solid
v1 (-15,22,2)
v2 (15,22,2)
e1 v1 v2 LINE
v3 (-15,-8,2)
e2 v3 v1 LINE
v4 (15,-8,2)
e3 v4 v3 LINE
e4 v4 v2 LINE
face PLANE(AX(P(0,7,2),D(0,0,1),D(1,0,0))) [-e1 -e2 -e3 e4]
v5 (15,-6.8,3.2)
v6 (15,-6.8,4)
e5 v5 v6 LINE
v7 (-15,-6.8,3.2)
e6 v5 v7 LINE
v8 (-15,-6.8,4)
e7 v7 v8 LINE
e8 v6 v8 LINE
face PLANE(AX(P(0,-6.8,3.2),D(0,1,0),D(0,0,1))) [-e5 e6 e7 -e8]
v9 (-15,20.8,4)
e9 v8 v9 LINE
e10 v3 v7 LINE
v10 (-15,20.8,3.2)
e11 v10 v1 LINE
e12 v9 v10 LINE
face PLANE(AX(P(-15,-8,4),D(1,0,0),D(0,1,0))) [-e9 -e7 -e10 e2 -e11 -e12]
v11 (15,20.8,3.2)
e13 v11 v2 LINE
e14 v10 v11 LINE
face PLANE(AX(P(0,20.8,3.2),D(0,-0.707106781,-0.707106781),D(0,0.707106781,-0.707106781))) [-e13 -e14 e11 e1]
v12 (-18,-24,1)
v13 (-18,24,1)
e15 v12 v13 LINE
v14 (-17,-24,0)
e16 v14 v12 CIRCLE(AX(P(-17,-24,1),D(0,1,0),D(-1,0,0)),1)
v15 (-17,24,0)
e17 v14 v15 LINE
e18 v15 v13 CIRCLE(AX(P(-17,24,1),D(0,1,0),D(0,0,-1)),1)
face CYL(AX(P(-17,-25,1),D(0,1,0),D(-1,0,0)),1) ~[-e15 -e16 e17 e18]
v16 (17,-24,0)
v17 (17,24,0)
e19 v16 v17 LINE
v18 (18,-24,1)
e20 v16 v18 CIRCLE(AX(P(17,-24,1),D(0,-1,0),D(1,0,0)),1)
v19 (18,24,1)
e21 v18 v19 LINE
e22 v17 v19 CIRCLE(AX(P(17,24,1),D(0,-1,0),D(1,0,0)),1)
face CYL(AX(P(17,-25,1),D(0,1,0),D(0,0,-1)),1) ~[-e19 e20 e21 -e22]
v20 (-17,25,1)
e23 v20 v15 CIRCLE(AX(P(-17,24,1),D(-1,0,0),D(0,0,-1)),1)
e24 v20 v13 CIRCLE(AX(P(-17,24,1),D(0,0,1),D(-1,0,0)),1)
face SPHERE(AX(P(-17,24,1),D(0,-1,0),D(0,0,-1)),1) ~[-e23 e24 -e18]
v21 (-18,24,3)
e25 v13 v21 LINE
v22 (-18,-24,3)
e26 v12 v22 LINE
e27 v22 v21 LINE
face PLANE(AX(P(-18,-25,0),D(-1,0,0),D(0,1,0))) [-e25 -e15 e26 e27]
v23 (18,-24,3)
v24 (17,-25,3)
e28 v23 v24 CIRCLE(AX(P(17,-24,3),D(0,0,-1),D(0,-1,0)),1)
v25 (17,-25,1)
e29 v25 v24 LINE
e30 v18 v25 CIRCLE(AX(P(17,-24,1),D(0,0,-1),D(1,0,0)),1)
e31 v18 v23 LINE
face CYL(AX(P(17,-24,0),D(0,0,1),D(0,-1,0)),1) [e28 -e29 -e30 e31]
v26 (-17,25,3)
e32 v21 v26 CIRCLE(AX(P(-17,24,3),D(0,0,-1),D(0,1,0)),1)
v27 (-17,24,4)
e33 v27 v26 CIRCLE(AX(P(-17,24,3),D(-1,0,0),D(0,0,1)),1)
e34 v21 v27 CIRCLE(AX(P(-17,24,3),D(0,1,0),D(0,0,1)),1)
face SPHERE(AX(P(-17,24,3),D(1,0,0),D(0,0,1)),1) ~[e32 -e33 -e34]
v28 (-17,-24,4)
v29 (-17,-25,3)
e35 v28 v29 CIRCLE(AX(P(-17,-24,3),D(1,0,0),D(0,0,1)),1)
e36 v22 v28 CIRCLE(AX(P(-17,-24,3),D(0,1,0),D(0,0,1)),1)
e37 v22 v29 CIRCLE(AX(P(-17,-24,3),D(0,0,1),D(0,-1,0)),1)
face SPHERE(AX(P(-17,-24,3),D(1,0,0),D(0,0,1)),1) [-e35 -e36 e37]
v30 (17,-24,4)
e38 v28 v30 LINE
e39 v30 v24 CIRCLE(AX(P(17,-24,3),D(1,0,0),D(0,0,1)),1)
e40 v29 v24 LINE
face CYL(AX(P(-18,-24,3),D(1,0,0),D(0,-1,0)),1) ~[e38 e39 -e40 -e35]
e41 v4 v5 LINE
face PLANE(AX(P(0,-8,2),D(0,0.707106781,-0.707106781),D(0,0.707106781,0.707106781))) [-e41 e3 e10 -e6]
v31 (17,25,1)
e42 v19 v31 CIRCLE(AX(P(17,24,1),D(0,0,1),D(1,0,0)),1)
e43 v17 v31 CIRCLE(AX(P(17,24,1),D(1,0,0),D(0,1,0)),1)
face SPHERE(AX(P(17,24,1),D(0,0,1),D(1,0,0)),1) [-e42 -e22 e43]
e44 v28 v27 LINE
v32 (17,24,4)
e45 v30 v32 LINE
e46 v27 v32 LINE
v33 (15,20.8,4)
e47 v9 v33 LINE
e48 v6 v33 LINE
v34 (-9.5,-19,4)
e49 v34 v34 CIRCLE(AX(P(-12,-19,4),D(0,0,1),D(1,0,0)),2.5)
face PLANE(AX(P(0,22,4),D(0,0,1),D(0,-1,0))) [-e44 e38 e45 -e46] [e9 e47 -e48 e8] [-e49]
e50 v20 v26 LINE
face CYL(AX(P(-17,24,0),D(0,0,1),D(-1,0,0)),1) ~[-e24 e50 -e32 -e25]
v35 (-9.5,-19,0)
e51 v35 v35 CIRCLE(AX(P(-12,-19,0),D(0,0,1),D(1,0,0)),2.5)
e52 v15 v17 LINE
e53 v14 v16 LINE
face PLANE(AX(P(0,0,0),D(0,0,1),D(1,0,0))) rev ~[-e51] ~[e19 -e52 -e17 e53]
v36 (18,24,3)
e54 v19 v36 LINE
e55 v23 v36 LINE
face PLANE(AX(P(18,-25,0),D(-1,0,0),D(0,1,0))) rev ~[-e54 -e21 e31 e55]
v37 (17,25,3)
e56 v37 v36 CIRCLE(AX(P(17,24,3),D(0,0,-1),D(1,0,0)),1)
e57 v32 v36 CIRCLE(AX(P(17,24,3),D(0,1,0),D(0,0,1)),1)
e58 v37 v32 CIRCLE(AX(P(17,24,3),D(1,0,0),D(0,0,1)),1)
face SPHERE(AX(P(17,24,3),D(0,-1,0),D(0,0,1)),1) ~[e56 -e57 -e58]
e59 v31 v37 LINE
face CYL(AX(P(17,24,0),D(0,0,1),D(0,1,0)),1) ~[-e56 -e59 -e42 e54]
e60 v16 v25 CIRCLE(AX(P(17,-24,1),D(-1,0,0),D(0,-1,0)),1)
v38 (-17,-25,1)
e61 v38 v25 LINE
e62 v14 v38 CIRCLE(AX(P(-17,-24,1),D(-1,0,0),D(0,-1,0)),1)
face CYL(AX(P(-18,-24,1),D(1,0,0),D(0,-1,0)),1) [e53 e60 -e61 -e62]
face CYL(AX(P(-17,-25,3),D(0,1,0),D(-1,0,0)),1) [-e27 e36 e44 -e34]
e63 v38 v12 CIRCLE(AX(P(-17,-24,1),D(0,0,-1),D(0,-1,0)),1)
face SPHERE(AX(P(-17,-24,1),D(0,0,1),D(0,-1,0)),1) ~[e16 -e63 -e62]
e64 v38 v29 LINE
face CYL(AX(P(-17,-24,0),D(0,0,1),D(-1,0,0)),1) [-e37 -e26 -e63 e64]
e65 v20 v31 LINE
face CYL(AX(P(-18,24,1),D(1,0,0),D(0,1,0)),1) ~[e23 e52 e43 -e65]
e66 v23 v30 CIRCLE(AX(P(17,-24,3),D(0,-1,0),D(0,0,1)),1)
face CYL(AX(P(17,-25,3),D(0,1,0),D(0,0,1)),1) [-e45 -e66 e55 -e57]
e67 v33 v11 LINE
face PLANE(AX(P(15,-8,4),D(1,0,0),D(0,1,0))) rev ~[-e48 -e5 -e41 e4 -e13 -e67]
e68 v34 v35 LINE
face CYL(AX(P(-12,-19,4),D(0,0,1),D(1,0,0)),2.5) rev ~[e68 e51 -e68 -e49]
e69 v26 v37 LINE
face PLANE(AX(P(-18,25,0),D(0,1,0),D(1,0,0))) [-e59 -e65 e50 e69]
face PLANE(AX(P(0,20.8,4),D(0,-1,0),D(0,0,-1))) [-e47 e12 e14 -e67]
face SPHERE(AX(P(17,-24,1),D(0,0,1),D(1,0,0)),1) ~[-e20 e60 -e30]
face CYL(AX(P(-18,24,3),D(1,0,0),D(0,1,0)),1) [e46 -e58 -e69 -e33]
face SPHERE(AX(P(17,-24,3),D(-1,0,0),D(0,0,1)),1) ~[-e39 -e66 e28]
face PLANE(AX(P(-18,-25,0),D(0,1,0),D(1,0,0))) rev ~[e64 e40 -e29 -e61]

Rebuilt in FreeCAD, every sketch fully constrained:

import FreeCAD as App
import Part
import Sketcher

V = App.Vector
Q = App.Units.Quantity


def edges_at(feature, points):
    """Names of the edges that pass closest to the given points."""
    edges = feature.Shape.Edges
    near = lambda p: min(range(len(edges)), key=lambda i: edges[i].distToShape(Part.Vertex(*p))[0])
    return sorted({f"Edge{near(p) + 1}" for p in points})

doc = App.newDocument("Part")
body = doc.addObject("PartDesign::Body", "Body")

# Sketch on XY plane
sketch1 = body.newObject("Sketcher::SketchObject", "Sketch")
sketch1.AttachmentSupport = (doc.getObject("XY_Plane"), [""])
sketch1.MapMode = "FlatFace"
sketch1.addGeometry([
    Part.LineSegment(V(-18, 25, 0), V(-18, -25, 0)),
    Part.LineSegment(V(-18, -25, 0), V(18, -25, 0)),
    Part.LineSegment(V(18, -25, 0), V(18, 25, 0)),
    Part.LineSegment(V(18, 25, 0), V(-18, 25, 0)),
], False)
sketch1.addConstraint([
    Sketcher.Constraint("Coincident", 0, 2, 1, 1),
    Sketcher.Constraint("Coincident", 1, 2, 2, 1),
    Sketcher.Constraint("Coincident", 2, 2, 3, 1),
    Sketcher.Constraint("Coincident", 3, 2, 0, 1),
    Sketcher.Constraint("Vertical", 0),
    Sketcher.Constraint("Horizontal", 1),
    Sketcher.Constraint("Vertical", 2),
    Sketcher.Constraint("Horizontal", 3),
    Sketcher.Constraint("Symmetric", 0, 2, 2, 2, -1, 1),
    Sketcher.Constraint("DistanceX", 1, 1, 1, 2, Q("36 mm")),
    Sketcher.Constraint("DistanceY", 0, 2, 0, 1, Q("50 mm")),
])
pad1 = body.newObject("PartDesign::Pad", "Pad")
pad1.Profile = sketch1
pad1.Length = 4

# Sketch on XY plane
sketch2 = body.newObject("Sketcher::SketchObject", "Sketch001")
sketch2.AttachmentSupport = (doc.getObject("XY_Plane"), [""])
sketch2.MapMode = "FlatFace"
sketch2.AttachmentOffset = App.Placement(V(0, 0, 4), App.Rotation())
sketch2.addGeometry([
    Part.LineSegment(V(-15, 22, 0), V(-15, -8, 0)),
    Part.LineSegment(V(-15, -8, 0), V(15, -8, 0)),
    Part.LineSegment(V(15, -8, 0), V(15, 22, 0)),
    Part.LineSegment(V(15, 22, 0), V(-15, 22, 0)),
], False)
sketch2.addConstraint([
    Sketcher.Constraint("Coincident", 0, 2, 1, 1),
    Sketcher.Constraint("Coincident", 1, 2, 2, 1),
    Sketcher.Constraint("Coincident", 2, 2, 3, 1),
    Sketcher.Constraint("Coincident", 3, 2, 0, 1),
    Sketcher.Constraint("Vertical", 0),
    Sketcher.Constraint("Horizontal", 1),
    Sketcher.Constraint("Vertical", 2),
    Sketcher.Constraint("Horizontal", 3),
    Sketcher.Constraint("Equal", 3, 0),
    Sketcher.Constraint("DistanceX", 1, 1, 1, 2, Q("30 mm")),
    Sketcher.Constraint("DistanceX", 0, 2, -1, 1, Q("15 mm")),
    Sketcher.Constraint("DistanceY", 0, 2, -1, 1, Q("8 mm")),
])
pocket1 = body.newObject("PartDesign::Pocket", "Pocket")
pocket1.Profile = sketch2
pocket1.Length = 2
doc.recompute()

fillet = body.newObject("PartDesign::Fillet", "Fillet")
fillet.Base = (pocket1, edges_at(pocket1, [
    (0, -25, 4),
    (18, 0, 4),
    (0, 25, 4),
    (-18, 0, 4),
    (18, -25, 2),
    (-18, -25, 2),
    (18, 25, 2),
    (18, 0, 0),
    (0, -25, 0),
    (-18, 0, 0),
    (0, 25, 0),
    (-18, 25, 2),
]))
fillet.Radius = 1

# Sketch on YZ plane
sketch3 = body.newObject("Sketcher::SketchObject", "Sketch002")
sketch3.AttachmentSupport = (doc.getObject("YZ_Plane"), [""])
sketch3.MapMode = "FlatFace"
sketch3.addGeometry([
    Part.LineSegment(V(-6.8, 4, 0), V(-8, 4, 0)),
    Part.LineSegment(V(-8, 4, 0), V(-8, 2, 0)),
    Part.LineSegment(V(-8, 2, 0), V(-6.8, 3.2, 0)),
    Part.LineSegment(V(-6.8, 3.2, 0), V(-6.8, 4, 0)),
], False)
sketch3.addConstraint([
    Sketcher.Constraint("Coincident", 0, 2, 1, 1),
    Sketcher.Constraint("Coincident", 1, 2, 2, 1),
    Sketcher.Constraint("Coincident", 2, 2, 3, 1),
    Sketcher.Constraint("Coincident", 3, 2, 0, 1),
    Sketcher.Constraint("Horizontal", 0),
    Sketcher.Constraint("Vertical", 1),
    Sketcher.Constraint("Vertical", 3),
    Sketcher.Constraint("DistanceY", 1, 2, 1, 1, Q("2 mm")),
    Sketcher.Constraint("Angle", 2, Q("45 deg")),
    Sketcher.Constraint("DistanceX", 0, 2, 0, 1, Q("1.2 mm")),
    Sketcher.Constraint("DistanceX", 0, 2, -1, 1, Q("8 mm")),
    Sketcher.Constraint("DistanceY", -1, 1, 0, 2, Q("4 mm")),
])
pad2 = body.newObject("PartDesign::Pad", "Pad001")
pad2.Profile = sketch3
pad2.Type = "TwoLengths"
pad2.Length = 15
pad2.Length2 = 15

# Sketch on YZ plane
sketch4 = body.newObject("Sketcher::SketchObject", "Sketch003")
sketch4.AttachmentSupport = (doc.getObject("YZ_Plane"), [""])
sketch4.MapMode = "FlatFace"
sketch4.addGeometry([
    Part.LineSegment(V(22, 2, 0), V(22, 4, 0)),
    Part.LineSegment(V(22, 4, 0), V(20.8, 4, 0)),
    Part.LineSegment(V(20.8, 4, 0), V(20.8, 3.2, 0)),
    Part.LineSegment(V(20.8, 3.2, 0), V(22, 2, 0)),
], False)
sketch4.addConstraint([
    Sketcher.Constraint("Coincident", 0, 2, 1, 1),
    Sketcher.Constraint("Coincident", 1, 2, 2, 1),
    Sketcher.Constraint("Coincident", 2, 2, 3, 1),
    Sketcher.Constraint("Coincident", 3, 2, 0, 1),
    Sketcher.Constraint("Vertical", 0),
    Sketcher.Constraint("Horizontal", 1),
    Sketcher.Constraint("Vertical", 2),
    Sketcher.Constraint("DistanceY", 0, 1, 0, 2, Q("2 mm")),
    Sketcher.Constraint("Angle", 3, Q("-45 deg")),
    Sketcher.Constraint("DistanceX", 1, 2, 1, 1, Q("1.2 mm")),
    Sketcher.Constraint("DistanceX", -1, 1, 0, 2, Q("22 mm")),
    Sketcher.Constraint("DistanceY", -1, 1, 0, 2, Q("4 mm")),
])
pad3 = body.newObject("PartDesign::Pad", "Pad002")
pad3.Profile = sketch4
pad3.Type = "TwoLengths"
pad3.Length = 15
pad3.Length2 = 15

# Sketch on XY plane
sketch5 = body.newObject("Sketcher::SketchObject", "Sketch004")
sketch5.AttachmentSupport = (doc.getObject("XY_Plane"), [""])
sketch5.MapMode = "FlatFace"
sketch5.AttachmentOffset = App.Placement(V(0, 0, 4), App.Rotation())
sketch5.addGeometry(Part.Circle(V(-12, -19, 0), V(0, 0, 1), 2.5), False)
sketch5.addConstraint([
    Sketcher.Constraint("Diameter", 0, Q("5 mm")),
    Sketcher.Constraint("DistanceX", 0, 3, -1, 1, Q("12 mm")),
    Sketcher.Constraint("DistanceY", 0, 3, -1, 1, Q("19 mm")),
])
pocket2 = body.newObject("PartDesign::Pocket", "Pocket001")
pocket2.Profile = sketch5
pocket2.Type = "ThroughAll"

doc.recompute()
